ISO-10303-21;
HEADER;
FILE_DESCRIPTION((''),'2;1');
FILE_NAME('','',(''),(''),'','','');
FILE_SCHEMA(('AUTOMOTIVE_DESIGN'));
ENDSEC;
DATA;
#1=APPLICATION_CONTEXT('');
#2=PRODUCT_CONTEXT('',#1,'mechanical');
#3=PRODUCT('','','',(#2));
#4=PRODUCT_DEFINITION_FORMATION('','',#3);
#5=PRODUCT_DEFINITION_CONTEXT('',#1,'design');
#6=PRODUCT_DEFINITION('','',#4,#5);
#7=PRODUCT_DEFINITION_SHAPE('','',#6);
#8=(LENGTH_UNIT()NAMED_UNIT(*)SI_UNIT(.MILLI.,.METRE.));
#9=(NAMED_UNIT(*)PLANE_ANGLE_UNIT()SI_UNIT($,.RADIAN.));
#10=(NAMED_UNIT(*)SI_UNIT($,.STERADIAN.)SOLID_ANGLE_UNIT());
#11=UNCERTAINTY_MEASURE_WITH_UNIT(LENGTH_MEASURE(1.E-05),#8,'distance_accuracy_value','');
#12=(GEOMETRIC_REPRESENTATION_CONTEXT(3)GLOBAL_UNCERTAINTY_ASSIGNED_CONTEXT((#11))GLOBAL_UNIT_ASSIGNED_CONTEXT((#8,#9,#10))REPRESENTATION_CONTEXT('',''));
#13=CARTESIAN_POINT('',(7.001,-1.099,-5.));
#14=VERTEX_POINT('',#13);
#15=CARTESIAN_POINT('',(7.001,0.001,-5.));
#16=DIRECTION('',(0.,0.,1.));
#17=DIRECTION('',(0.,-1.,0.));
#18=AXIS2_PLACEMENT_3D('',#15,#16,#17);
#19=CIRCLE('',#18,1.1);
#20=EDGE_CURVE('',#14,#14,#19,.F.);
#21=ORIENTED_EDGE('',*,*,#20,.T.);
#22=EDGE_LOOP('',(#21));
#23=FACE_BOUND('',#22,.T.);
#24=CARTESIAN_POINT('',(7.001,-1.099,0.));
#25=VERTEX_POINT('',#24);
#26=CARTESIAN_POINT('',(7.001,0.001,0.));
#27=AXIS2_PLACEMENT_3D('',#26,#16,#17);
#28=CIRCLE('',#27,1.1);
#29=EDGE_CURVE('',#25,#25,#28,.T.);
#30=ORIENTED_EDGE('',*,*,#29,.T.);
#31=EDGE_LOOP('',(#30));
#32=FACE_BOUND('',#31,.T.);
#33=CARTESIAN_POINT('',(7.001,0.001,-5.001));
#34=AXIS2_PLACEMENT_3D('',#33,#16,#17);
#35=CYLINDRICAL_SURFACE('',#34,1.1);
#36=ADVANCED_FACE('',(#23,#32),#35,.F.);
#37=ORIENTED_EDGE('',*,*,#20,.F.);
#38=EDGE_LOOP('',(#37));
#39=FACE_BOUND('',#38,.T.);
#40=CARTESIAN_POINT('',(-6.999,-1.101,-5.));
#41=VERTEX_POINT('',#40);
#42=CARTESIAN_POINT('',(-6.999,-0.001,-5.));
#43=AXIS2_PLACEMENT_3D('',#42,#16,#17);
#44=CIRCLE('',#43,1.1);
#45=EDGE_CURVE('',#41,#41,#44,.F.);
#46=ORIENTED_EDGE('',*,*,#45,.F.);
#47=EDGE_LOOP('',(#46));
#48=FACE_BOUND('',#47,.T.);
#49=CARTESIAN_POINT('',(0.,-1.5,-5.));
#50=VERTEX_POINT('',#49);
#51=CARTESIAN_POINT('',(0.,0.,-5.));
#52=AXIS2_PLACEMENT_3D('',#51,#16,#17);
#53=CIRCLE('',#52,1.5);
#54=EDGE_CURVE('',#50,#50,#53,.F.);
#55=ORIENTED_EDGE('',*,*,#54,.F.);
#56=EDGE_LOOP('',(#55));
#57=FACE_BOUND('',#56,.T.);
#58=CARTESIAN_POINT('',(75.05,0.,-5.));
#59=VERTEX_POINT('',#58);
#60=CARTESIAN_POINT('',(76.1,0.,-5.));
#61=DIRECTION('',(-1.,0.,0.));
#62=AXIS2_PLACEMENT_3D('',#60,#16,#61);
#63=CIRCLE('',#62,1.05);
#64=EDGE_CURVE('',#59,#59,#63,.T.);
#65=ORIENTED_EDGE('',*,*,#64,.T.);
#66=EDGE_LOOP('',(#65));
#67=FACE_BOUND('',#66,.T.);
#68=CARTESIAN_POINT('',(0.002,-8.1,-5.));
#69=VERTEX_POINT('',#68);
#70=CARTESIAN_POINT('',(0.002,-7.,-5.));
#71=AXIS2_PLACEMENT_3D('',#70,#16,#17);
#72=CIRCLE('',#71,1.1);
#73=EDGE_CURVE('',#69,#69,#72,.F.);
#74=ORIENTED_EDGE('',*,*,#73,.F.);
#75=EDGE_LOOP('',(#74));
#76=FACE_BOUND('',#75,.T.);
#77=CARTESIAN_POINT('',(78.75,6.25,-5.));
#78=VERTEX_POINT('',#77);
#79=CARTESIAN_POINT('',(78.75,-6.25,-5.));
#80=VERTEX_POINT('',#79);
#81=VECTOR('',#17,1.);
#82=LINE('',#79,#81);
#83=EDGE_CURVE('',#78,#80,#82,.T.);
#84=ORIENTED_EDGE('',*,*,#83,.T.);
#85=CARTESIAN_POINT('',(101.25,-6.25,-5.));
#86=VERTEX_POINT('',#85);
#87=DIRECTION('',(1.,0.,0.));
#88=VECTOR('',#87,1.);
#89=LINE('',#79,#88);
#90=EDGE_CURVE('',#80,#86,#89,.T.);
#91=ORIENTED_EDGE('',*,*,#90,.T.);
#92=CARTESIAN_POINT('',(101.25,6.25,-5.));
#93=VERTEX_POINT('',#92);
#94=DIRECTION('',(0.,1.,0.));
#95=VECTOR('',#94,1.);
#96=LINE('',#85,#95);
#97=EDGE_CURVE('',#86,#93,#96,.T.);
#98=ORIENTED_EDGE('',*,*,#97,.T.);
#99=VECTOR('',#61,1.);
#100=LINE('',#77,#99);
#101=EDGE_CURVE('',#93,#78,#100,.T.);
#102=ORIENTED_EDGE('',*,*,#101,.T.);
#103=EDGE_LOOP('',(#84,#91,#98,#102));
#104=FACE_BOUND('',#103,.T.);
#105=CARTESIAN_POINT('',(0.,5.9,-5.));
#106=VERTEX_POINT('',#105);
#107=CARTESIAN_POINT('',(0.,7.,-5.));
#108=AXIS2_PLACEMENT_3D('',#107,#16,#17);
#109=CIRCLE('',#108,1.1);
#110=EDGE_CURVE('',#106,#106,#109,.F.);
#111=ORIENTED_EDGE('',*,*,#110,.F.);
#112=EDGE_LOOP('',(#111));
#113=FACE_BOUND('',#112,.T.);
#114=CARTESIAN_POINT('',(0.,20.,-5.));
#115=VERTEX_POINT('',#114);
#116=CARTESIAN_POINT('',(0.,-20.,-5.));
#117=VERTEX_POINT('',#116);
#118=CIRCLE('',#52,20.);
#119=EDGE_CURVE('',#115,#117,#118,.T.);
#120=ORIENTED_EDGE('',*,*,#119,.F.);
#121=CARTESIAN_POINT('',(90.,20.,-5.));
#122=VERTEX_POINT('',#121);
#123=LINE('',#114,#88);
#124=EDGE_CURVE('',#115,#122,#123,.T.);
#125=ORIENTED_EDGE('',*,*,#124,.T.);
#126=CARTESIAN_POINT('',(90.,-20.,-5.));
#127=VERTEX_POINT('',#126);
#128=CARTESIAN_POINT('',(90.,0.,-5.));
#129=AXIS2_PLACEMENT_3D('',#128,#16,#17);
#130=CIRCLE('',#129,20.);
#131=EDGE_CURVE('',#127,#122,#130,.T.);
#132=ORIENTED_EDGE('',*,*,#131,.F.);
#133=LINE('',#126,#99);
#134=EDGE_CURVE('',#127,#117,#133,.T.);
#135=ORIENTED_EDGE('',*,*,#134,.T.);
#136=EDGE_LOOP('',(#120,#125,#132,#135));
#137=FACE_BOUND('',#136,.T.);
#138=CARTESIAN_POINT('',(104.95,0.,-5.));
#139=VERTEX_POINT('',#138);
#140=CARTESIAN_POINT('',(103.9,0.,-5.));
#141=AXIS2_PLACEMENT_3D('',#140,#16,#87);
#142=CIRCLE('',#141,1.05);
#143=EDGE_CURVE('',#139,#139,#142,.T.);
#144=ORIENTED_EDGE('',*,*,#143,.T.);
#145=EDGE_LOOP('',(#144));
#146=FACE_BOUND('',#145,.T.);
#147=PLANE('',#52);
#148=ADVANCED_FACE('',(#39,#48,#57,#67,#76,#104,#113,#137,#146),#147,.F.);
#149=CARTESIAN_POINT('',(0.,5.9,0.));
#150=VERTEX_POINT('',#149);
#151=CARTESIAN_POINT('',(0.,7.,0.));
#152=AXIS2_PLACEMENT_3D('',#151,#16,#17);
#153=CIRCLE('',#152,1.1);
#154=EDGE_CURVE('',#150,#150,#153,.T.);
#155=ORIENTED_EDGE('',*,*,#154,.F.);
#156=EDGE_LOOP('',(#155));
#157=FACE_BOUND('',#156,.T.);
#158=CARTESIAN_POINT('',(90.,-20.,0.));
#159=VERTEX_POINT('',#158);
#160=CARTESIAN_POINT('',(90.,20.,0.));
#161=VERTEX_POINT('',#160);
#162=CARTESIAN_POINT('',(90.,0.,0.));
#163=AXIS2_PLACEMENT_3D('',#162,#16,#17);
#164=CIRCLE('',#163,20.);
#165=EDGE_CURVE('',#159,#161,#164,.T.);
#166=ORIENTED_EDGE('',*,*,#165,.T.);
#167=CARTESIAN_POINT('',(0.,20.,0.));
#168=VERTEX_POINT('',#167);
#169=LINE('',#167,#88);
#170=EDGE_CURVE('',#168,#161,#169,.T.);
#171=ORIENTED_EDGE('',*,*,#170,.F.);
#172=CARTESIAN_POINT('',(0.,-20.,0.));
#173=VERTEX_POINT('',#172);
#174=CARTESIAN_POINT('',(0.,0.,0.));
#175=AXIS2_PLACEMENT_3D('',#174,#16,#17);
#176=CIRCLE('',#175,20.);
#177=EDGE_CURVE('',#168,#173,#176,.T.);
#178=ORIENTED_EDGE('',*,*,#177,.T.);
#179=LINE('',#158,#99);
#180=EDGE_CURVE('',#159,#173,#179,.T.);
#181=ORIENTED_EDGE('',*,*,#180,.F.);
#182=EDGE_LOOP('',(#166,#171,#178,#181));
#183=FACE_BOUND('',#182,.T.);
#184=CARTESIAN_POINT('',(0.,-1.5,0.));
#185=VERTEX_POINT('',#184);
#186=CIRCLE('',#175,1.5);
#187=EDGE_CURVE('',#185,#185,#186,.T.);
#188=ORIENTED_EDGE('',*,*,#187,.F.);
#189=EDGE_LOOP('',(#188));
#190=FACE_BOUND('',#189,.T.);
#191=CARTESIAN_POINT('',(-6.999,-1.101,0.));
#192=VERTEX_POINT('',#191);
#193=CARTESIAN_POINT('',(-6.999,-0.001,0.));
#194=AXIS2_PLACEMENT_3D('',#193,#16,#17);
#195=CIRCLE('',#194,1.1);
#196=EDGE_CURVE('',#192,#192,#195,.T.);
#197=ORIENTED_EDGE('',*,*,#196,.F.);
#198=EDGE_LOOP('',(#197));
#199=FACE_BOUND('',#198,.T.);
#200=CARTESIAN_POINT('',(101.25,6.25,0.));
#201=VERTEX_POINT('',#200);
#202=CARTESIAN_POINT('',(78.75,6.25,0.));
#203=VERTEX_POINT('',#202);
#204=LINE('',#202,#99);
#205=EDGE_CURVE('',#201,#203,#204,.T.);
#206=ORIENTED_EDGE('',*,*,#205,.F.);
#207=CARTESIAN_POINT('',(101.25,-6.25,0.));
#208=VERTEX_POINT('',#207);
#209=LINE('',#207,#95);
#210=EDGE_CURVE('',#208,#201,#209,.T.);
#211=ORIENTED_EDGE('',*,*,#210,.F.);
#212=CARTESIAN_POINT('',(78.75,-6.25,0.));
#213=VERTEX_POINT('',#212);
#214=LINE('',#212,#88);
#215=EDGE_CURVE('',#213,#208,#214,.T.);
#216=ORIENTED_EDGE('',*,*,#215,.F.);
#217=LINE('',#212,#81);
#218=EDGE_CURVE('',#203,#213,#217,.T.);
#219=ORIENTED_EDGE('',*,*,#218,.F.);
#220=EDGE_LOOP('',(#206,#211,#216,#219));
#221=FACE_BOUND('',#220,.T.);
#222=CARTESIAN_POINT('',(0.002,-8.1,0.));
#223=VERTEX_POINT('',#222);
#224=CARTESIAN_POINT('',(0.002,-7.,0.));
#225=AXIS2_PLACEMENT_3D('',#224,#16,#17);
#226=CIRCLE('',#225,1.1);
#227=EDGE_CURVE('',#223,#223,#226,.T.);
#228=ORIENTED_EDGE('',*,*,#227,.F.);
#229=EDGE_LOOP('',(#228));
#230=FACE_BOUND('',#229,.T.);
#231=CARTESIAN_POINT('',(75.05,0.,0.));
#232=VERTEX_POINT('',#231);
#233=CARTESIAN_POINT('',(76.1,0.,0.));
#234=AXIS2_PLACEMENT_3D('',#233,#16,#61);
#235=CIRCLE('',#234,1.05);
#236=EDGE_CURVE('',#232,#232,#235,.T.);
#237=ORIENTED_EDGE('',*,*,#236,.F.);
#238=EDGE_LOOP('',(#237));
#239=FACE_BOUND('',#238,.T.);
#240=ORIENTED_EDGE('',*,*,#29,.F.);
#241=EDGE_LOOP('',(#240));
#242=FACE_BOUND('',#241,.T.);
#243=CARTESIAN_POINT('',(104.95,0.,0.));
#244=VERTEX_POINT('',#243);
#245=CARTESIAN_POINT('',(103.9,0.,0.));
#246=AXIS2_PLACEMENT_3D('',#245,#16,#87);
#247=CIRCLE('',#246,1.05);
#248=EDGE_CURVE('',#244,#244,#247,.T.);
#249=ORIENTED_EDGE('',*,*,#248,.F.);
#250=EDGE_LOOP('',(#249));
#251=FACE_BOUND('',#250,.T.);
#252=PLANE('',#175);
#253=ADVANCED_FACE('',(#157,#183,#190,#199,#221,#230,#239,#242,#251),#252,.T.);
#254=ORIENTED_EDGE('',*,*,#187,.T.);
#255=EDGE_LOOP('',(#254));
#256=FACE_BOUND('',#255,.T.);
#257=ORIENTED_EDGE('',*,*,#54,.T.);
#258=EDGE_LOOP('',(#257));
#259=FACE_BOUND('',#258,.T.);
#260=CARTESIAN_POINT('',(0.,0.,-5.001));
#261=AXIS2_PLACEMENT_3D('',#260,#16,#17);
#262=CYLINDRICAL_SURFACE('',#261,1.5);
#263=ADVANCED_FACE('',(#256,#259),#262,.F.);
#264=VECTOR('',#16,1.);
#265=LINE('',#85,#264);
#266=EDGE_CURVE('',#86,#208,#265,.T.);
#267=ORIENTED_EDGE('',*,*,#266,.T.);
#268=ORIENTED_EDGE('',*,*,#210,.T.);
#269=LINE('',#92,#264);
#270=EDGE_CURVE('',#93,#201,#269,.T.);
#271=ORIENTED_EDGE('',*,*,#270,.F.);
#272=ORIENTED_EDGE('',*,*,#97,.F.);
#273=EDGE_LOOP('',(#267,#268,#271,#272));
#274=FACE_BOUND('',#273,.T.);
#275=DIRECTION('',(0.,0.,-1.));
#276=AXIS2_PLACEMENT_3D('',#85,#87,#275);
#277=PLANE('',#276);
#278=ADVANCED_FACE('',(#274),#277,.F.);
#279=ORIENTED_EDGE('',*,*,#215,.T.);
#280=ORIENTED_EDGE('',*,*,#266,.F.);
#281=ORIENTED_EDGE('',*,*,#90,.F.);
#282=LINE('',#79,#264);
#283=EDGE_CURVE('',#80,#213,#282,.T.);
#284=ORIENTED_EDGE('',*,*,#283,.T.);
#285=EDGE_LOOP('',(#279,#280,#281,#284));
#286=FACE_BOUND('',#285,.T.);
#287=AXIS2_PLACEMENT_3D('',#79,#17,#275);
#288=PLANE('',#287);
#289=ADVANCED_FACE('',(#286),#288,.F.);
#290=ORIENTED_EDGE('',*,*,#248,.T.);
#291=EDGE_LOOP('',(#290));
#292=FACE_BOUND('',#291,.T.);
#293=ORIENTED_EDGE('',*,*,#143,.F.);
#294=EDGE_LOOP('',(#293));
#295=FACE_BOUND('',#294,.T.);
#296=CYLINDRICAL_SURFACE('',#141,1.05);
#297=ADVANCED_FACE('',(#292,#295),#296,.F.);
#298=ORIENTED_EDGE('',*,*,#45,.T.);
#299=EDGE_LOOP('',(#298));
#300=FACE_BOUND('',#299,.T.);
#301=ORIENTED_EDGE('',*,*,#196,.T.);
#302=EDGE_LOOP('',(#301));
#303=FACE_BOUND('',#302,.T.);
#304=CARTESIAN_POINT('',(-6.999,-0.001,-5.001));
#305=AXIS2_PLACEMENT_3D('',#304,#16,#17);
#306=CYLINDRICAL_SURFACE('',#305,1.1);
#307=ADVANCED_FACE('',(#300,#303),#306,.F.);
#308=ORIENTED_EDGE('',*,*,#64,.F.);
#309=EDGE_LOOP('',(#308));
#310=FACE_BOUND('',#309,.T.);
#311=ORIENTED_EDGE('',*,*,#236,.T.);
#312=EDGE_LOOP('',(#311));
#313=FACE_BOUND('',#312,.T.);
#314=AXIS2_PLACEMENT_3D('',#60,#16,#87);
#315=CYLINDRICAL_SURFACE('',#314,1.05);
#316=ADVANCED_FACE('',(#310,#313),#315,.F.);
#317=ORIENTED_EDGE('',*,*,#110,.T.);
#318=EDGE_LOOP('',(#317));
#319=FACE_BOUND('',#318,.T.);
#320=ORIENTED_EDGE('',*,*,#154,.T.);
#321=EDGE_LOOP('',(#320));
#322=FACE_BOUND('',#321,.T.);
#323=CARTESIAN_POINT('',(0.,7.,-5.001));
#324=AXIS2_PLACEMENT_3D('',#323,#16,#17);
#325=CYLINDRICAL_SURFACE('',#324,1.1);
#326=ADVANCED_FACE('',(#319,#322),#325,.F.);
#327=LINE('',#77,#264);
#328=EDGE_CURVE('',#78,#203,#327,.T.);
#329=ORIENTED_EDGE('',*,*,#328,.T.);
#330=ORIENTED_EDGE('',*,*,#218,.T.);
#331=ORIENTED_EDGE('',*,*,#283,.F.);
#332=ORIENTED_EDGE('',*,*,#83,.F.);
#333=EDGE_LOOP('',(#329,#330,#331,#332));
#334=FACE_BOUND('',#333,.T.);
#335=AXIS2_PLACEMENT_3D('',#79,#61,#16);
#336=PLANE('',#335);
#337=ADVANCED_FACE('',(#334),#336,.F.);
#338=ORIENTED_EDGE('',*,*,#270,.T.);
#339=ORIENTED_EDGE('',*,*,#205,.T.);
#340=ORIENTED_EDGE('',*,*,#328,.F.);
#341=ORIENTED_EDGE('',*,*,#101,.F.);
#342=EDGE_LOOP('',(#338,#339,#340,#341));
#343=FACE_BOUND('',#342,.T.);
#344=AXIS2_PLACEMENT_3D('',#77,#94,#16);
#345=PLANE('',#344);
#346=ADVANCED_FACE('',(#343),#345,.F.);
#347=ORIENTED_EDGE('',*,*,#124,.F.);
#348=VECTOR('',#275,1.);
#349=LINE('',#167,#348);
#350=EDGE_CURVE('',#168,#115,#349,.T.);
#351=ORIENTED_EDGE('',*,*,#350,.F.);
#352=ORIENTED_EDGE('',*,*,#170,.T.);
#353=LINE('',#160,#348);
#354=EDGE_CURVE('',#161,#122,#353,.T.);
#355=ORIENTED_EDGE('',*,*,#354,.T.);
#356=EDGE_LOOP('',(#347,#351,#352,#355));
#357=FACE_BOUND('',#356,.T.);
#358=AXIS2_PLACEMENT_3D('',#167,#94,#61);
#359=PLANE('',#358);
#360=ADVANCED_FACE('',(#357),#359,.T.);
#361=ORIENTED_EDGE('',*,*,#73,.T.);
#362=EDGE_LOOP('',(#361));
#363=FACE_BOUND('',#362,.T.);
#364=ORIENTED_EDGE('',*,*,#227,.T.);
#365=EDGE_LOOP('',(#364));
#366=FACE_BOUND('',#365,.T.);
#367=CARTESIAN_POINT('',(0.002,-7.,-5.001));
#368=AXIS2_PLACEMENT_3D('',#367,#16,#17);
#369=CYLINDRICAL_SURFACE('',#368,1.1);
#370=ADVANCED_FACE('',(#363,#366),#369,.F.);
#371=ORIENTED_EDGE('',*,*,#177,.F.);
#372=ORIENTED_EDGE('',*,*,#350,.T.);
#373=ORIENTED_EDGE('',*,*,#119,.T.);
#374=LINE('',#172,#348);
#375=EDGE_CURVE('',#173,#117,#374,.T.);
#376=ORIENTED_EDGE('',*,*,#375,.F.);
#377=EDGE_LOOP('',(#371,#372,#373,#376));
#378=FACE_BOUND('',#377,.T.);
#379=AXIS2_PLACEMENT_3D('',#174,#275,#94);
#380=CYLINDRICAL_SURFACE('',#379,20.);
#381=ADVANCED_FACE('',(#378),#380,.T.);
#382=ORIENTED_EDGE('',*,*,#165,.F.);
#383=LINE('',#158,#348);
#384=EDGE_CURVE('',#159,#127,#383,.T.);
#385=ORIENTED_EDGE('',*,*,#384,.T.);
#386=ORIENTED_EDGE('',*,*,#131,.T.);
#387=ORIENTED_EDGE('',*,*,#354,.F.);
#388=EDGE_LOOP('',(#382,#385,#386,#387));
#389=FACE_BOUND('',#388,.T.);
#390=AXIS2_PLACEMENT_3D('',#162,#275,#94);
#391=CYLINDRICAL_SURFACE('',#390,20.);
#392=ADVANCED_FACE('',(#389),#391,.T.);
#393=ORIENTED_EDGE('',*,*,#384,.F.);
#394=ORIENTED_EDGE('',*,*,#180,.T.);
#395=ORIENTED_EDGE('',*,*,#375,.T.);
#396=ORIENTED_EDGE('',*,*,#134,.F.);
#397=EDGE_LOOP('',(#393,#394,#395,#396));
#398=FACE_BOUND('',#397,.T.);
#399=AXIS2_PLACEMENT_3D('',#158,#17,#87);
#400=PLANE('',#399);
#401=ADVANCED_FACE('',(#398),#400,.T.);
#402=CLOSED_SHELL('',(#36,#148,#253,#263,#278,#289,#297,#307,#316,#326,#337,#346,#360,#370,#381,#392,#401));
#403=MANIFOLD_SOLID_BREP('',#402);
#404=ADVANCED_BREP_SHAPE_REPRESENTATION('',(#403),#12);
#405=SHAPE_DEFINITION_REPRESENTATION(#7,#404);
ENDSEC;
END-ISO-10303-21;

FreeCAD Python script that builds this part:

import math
import FreeCAD as App
import Part
import Sketcher

doc = App.newDocument("Part")
body = doc.addObject("PartDesign::Body", "Body")

sketch1 = body.newObject("Sketcher::SketchObject", "Sketch")
sketch1.AttachmentSupport = (doc.getObject("XZ_Plane"), [""])
sketch1.MapMode = "FlatFace"
sketch1.addGeometry([
    Part.LineSegment(App.Vector(0, 20, 0), App.Vector(90, 20, 0)),
    Part.ArcOfCircle(Part.Circle(App.Vector(90, 0, 0), App.Vector(0, 0, 1), 20), math.radians(-90), math.radians(90)),
    Part.LineSegment(App.Vector(90, -20, 0), App.Vector(0, -20, 0)),
    Part.ArcOfCircle(Part.Circle(App.Vector(0, 0, 0), App.Vector(0, 0, 1), 20), math.radians(90), math.radians(270)),
], False)
sketch1.addConstraint([
    Sketcher.Constraint("Tangent", 0, 2, 1, 2),
    Sketcher.Constraint("Tangent", 1, 1, 2, 1),
    Sketcher.Constraint("Tangent", 2, 2, 3, 2),
    Sketcher.Constraint("Tangent", 3, 1, 0, 1),
    Sketcher.Constraint("Horizontal", 0),
    Sketcher.Constraint("Horizontal", 2),
    Sketcher.Constraint("Coincident", 3, 3, -1, 1),
    Sketcher.Constraint("Radius", 1, 20.0),
    Sketcher.Constraint("DistanceX", 0, 1, 0, 2, 90.0),
])
pad1 = body.newObject("PartDesign::Pad", "Pad")
pad1.Profile = sketch1
pad1.Length = 5
pad1.Reversed = True

sketch2 = body.newObject("Sketcher::SketchObject", "Sketch001")
sketch2.AttachmentSupport = (doc.getObject("XZ_Plane"), [""])
sketch2.MapMode = "FlatFace"
sketch2.AttachmentOffset = App.Placement(App.Vector(0, 0, -5), App.Rotation())
sketch2.addGeometry(Part.Circle(App.Vector(0, 0, 0), App.Vector(0, 0, 1), 1.5), False)
sketch2.addConstraint([
    Sketcher.Constraint("Coincident", 0, 3, -1, 1),
    Sketcher.Constraint("Diameter", 0, 3.0),
])
pocket1 = body.newObject("PartDesign::Pocket", "Pocket")
pocket1.Profile = sketch2
pocket1.Type = "UpToFirst"
pocket1.Reversed = True

sketch3 = body.newObject("Sketcher::SketchObject", "Sketch002")
sketch3.AttachmentSupport = (doc.getObject("XZ_Plane"), [""])
sketch3.MapMode = "FlatFace"
sketch3.AttachmentOffset = App.Placement(App.Vector(0, 0, -5), App.Rotation())
sketch3.addGeometry(Part.Circle(App.Vector(0, -7, 0), App.Vector(0, 0, 1), 1.1), False)
sketch3.addConstraint([
    Sketcher.Constraint("PointOnObject", 0, 3, -2),
    Sketcher.Constraint("Diameter", 0, 2.2),
    Sketcher.Constraint("DistanceY", 0, 3, -1, 1, 7.0),
])
pocket2 = body.newObject("PartDesign::Pocket", "Pocket001")
pocket2.Profile = sketch3
pocket2.Type = "UpToFirst"
pocket2.Reversed = True

sketch4 = body.newObject("Sketcher::SketchObject", "Sketch003")
sketch4.AttachmentSupport = (doc.getObject("XZ_Plane"), [""])
sketch4.MapMode = "FlatFace"
sketch4.AttachmentOffset = App.Placement(App.Vector(0, 0, -5), App.Rotation())
sketch4.addGeometry(Part.Circle(App.Vector(7, 0, 0), App.Vector(0, 0, 1), 1.1), False)
sketch4.addConstraint([
    Sketcher.Constraint("Diameter", 0, 2.2),
    Sketcher.Constraint("DistanceX", -1, 1, 0, 3, 7.001),
    Sketcher.Constraint("DistanceY", 0, 3, -1, 1, 0.001),
])
pocket3 = body.newObject("PartDesign::Pocket", "Pocket002")
pocket3.Profile = sketch4
pocket3.Type = "UpToFirst"
pocket3.Reversed = True

sketch5 = body.newObject("Sketcher::SketchObject", "Sketch004")
sketch5.AttachmentSupport = (doc.getObject("XZ_Plane"), [""])
sketch5.MapMode = "FlatFace"
sketch5.AttachmentOffset = App.Placement(App.Vector(0, 0, -5), App.Rotation())
sketch5.addGeometry(Part.Circle(App.Vector(0, 7, 0), App.Vector(0, 0, 1), 1.1), False)
sketch5.addConstraint([
    Sketcher.Constraint("Diameter", 0, 2.2),
    Sketcher.Constraint("DistanceY", -1, 1, 0, 3, 7.0),
    Sketcher.Constraint("DistanceX", -1, 1, 0, 3, 0.002),
])
pocket4 = body.newObject("PartDesign::Pocket", "Pocket003")
pocket4.Profile = sketch5
pocket4.Type = "UpToFirst"
pocket4.Reversed = True

sketch6 = body.newObject("Sketcher::SketchObject", "Sketch005")
sketch6.AttachmentSupport = (doc.getObject("XZ_Plane"), [""])
sketch6.MapMode = "FlatFace"
sketch6.AttachmentOffset = App.Placement(App.Vector(0, 0, -5), App.Rotation())
sketch6.addGeometry(Part.Circle(App.Vector(-7, 0, 0), App.Vector(0, 0, 1), 1.1), False)
sketch6.addConstraint([
    Sketcher.Constraint("Diameter", 0, 2.2),
    Sketcher.Constraint("DistanceX", 0, 3, -1, 1, 6.999),
    Sketcher.Constraint("DistanceY", -1, 1, 0, 3, 0.001),
])
pocket5 = body.newObject("PartDesign::Pocket", "Pocket004")
pocket5.Profile = sketch6
pocket5.Type = "UpToFirst"
pocket5.Reversed = True
body2 = doc.addObject("PartDesign::Body", "Body001")
doc.recompute()

body.Placement = App.Placement(App.Vector(0, 0, 0), App.Rotation(App.Vector(1, 0, 0), 90))
boolean = body2.newObject("PartDesign::Boolean", "Boolean")
boolean.Type = "Fuse"
boolean.addObjects([body])

sketch7 = body2.newObject("Sketcher::SketchObject", "Sketch006")
sketch7.AttachmentSupport = (doc.getObject("XY_Plane001"), [""])
sketch7.MapMode = "FlatFace"
sketch7.AttachmentOffset = App.Placement(App.Vector(0, 0, 5), App.Rotation())
sketch7.addGeometry([
    Part.Circle(App.Vector(103.9, 0, 0), App.Vector(0, 0, 1), 1.1),
    Part.Circle(App.Vector(76.1, 0, 0), App.Vector(0, 0, 1), 1.1),
    Part.LineSegment(App.Vector(78.8, 6.2, 0), App.Vector(78.8, -6.2, 0)),
    Part.LineSegment(App.Vector(78.8, -6.2, 0), App.Vector(101.2, -6.2, 0)),
    Part.LineSegment(App.Vector(101.2, -6.2, 0), App.Vector(101.2, 6.2, 0)),
    Part.LineSegment(App.Vector(101.2, 6.2, 0), App.Vector(78.8, 6.2, 0)),
], False)
sketch7.addConstraint([
    Sketcher.Constraint("Coincident", 2, 2, 3, 1),
    Sketcher.Constraint("Coincident", 3, 2, 4, 1),
    Sketcher.Constraint("Coincident", 4, 2, 5, 1),
    Sketcher.Constraint("Coincident", 5, 2, 2, 1),
    Sketcher.Constraint("Vertical", 2),
    Sketcher.Constraint("Horizontal", 3),
    Sketcher.Constraint("Vertical", 4),
    Sketcher.Constraint("Horizontal", 5),
    Sketcher.Constraint("Equal", 0, 1),
    Sketcher.Constraint("PointOnObject", 0, 3, -1),
    Sketcher.Constraint("PointOnObject", 1, 3, -1),
    Sketcher.Constraint("Diameter", 0, 2.1),
    Sketcher.Constraint("DistanceX", 3, 1, 3, 2, 22.5),
    Sketcher.Constraint("DistanceY", 2, 2, 2, 1, 12.5),
    Sketcher.Constraint("DistanceX", -1, 1, 0, 3, 103.9),
    Sketcher.Constraint("DistanceX", -1, 1, 1, 3, 76.1),
    Sketcher.Constraint("DistanceX", -1, 1, 2, 2, 78.75),
    Sketcher.Constraint("DistanceY", 2, 2, -1, 1, 6.25),
])
pocket6 = body2.newObject("PartDesign::Pocket", "Pocket005")
pocket6.Profile = sketch7
pocket6.Type = "ThroughAll"
body3 = doc.addObject("PartDesign::Body", "Body002")
doc.recompute()

body2.Placement = App.Placement(App.Vector(0, 0, -5), App.Rotation(App.Vector(0, 0, 1), 0))
boolean2 = body3.newObject("PartDesign::Boolean", "Boolean001")
boolean2.Type = "Fuse"
boolean2.addObjects([body2])

doc.recompute()
